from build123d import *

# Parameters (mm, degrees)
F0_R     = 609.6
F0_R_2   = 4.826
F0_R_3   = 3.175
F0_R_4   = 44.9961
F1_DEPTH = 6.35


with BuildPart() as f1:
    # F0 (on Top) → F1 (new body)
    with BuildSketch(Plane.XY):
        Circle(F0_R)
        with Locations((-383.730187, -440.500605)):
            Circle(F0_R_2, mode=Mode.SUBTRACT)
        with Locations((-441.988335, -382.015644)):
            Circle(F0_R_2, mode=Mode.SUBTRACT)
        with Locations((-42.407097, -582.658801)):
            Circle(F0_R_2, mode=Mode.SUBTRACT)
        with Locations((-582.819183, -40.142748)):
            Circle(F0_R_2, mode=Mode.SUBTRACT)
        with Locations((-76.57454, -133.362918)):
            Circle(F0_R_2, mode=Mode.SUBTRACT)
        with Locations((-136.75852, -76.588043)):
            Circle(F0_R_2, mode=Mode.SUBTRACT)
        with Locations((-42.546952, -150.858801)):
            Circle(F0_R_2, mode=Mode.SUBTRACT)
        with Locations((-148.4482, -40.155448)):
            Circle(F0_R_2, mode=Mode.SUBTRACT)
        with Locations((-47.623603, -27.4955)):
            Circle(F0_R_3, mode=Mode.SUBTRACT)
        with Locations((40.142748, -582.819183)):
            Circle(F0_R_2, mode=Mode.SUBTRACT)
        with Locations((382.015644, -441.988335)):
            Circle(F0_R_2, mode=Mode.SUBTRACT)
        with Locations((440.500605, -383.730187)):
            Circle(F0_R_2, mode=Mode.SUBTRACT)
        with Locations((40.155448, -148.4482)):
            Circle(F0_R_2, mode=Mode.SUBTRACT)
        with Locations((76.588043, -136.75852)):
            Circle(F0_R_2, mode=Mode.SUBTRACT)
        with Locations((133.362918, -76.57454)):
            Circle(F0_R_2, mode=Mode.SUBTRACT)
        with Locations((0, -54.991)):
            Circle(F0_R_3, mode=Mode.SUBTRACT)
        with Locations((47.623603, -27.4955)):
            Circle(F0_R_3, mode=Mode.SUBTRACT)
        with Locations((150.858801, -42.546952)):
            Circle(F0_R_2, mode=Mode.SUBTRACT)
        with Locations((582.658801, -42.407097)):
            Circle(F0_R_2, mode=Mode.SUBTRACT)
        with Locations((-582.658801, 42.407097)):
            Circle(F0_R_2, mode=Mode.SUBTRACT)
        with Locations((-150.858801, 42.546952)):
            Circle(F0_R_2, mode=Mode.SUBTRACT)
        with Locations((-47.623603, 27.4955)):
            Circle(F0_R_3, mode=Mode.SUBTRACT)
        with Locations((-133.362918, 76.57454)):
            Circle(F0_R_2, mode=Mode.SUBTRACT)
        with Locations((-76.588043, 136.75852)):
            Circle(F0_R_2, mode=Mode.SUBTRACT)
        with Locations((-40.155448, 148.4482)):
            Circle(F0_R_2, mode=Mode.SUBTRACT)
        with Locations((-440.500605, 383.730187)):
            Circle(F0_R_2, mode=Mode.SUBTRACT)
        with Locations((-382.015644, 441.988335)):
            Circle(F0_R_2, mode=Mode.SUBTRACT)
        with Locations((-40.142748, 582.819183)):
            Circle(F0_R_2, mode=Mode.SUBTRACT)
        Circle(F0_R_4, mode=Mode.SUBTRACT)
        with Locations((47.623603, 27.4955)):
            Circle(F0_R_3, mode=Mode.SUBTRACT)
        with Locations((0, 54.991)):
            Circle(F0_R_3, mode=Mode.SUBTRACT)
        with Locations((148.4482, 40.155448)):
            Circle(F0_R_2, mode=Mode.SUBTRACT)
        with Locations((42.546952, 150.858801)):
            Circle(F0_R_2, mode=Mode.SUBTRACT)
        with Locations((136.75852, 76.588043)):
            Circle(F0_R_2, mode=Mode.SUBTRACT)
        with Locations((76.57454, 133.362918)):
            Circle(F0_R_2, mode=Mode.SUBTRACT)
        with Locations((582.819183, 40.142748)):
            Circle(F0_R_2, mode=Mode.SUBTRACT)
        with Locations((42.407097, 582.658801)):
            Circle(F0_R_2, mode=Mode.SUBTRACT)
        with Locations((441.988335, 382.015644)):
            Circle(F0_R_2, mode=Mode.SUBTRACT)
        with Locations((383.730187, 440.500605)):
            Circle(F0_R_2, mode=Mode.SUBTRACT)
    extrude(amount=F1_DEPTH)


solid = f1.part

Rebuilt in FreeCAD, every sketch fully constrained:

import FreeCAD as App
import Part
import Sketcher
Q = App.Units.Quantity

doc = App.newDocument("Part")
params = doc.addObject("Spreadsheet::Sheet", "Params")
for row, (alias, value) in enumerate([
    ("sketch1_diameter", "48 in"),
    ("sketch1_diameter2", "0.38 in"),
    ("sketch1_diameter3", "0.25 in"),
    ("sketch1_diameter4", "3.543 in"),
    ("pad1_length", "0.25 in"),
], start=1):
    params.set(f"A{row}", alias)
    params.set(f"B{row}", "=" + value)
    params.setAlias(f"B{row}", alias)

body = doc.addObject("PartDesign::Body", "Body")

sketch1 = doc.addObject("Sketcher::SketchObject", "Sketch")
body.addObject(sketch1)
sketch1.AttachmentSupport = (doc.XY_Plane, [""])
sketch1.MapMode = "FlatFace"
sketch1.addGeometry([
    Part.Circle(App.Vector(0, 0, 0), App.Vector(0, 0, 1), 609.6),
    Part.Circle(App.Vector(-441.988335, -382.015644, 0), App.Vector(0, 0, 1), 4.826),
    Part.Circle(App.Vector(-383.730187, -440.500605, 0), App.Vector(0, 0, 1), 4.826),
    Part.Circle(App.Vector(-42.407097, -582.658801, 0), App.Vector(0, 0, 1), 4.826),
    Part.Circle(App.Vector(-582.819183, -40.142748, 0), App.Vector(0, 0, 1), 4.826),
    Part.Circle(App.Vector(-42.546952, -150.858801, 0), App.Vector(0, 0, 1), 4.826),
    Part.Circle(App.Vector(-148.4482, -40.155448, 0), App.Vector(0, 0, 1), 4.826),
    Part.Circle(App.Vector(-76.57454, -133.362918, 0), App.Vector(0, 0, 1), 4.826),
    Part.Circle(App.Vector(-136.75852, -76.588043, 0), App.Vector(0, 0, 1), 4.826),
    Part.Circle(App.Vector(0, -54.991, 0), App.Vector(0, 0, 1), 3.175),
    Part.Circle(App.Vector(-47.623603, -27.4955, 0), App.Vector(0, 0, 1), 3.175),
    Part.Circle(App.Vector(0, 0, 0), App.Vector(0, 0, 1), 44.9961),
    Part.Circle(App.Vector(40.142748, -582.819183, 0), App.Vector(0, 0, 1), 4.826),
    Part.Circle(App.Vector(382.015644, -441.988335, 0), App.Vector(0, 0, 1), 4.826),
    Part.Circle(App.Vector(440.500605, -383.730187, 0), App.Vector(0, 0, 1), 4.826),
    Part.Circle(App.Vector(40.155448, -148.4482, 0), App.Vector(0, 0, 1), 4.826),
    Part.Circle(App.Vector(76.588043, -136.75852, 0), App.Vector(0, 0, 1), 4.826),
    Part.Circle(App.Vector(133.362918, -76.57454, 0), App.Vector(0, 0, 1), 4.826),
    Part.Circle(App.Vector(47.623603, -27.4955, 0), App.Vector(0, 0, 1), 3.175),
    Part.Circle(App.Vector(150.858801, -42.546952, 0), App.Vector(0, 0, 1), 4.826),
    Part.Circle(App.Vector(582.658801, -42.407097, 0), App.Vector(0, 0, 1), 4.826),
    Part.Circle(App.Vector(-582.658801, 42.407097, 0), App.Vector(0, 0, 1), 4.826),
    Part.Circle(App.Vector(-150.858801, 42.546952, 0), App.Vector(0, 0, 1), 4.826),
    Part.Circle(App.Vector(-47.623603, 27.4955, 0), App.Vector(0, 0, 1), 3.175),
    Part.Circle(App.Vector(0, 54.991, 0), App.Vector(0, 0, 1), 3.175),
    Part.Circle(App.Vector(-133.362918, 76.57454, 0), App.Vector(0, 0, 1), 4.826),
    Part.Circle(App.Vector(-76.588043, 136.75852, 0), App.Vector(0, 0, 1), 4.826),
    Part.Circle(App.Vector(-40.155448, 148.4482, 0), App.Vector(0, 0, 1), 4.826),
    Part.Circle(App.Vector(-440.500605, 383.730187, 0), App.Vector(0, 0, 1), 4.826),
    Part.Circle(App.Vector(-382.015644, 441.988335, 0), App.Vector(0, 0, 1), 4.826),
    Part.Circle(App.Vector(-40.142748, 582.819183, 0), App.Vector(0, 0, 1), 4.826),
    Part.Circle(App.Vector(47.623603, 27.4955, 0), App.Vector(0, 0, 1), 3.175),
    Part.Circle(App.Vector(136.75852, 76.588043, 0), App.Vector(0, 0, 1), 4.826),
    Part.Circle(App.Vector(76.57454, 133.362918, 0), App.Vector(0, 0, 1), 4.826),
    Part.Circle(App.Vector(148.4482, 40.155448, 0), App.Vector(0, 0, 1), 4.826),
    Part.Circle(App.Vector(42.546952, 150.858801, 0), App.Vector(0, 0, 1), 4.826),
    Part.Circle(App.Vector(582.819183, 40.142748, 0), App.Vector(0, 0, 1), 4.826),
    Part.Circle(App.Vector(42.407097, 582.658801, 0), App.Vector(0, 0, 1), 4.826),
    Part.Circle(App.Vector(383.730187, 440.500605, 0), App.Vector(0, 0, 1), 4.826),
    Part.Circle(App.Vector(441.988335, 382.015644, 0), App.Vector(0, 0, 1), 4.826),
], False)
sketch1.addConstraint([
    Sketcher.Constraint("Coincident", 0, 3, -1, 1),
    Sketcher.Constraint("Coincident", 11, 3, -1, 1),
    Sketcher.Constraint("Equal", 1, 2),
    Sketcher.Constraint("Equal", 2, 3),
    Sketcher.Constraint("Equal", 3, 4),
    Sketcher.Constraint("Equal", 4, 5),
    Sketcher.Constraint("Equal", 5, 6),
    Sketcher.Constraint("Equal", 6, 7),
    Sketcher.Constraint("Equal", 7, 8),
    Sketcher.Constraint("Equal", 9, 10),
    Sketcher.Constraint("Equal", 8, 12),
    Sketcher.Constraint("Equal", 12, 13),
    Sketcher.Constraint("Equal", 13, 14),
    Sketcher.Constraint("Equal", 14, 15),
    Sketcher.Constraint("Equal", 15, 16),
    Sketcher.Constraint("Equal", 16, 17),
    Sketcher.Constraint("Equal", 10, 18),
    Sketcher.Constraint("Equal", 17, 19),
    Sketcher.Constraint("Equal", 19, 20),
    Sketcher.Constraint("Equal", 20, 21),
    Sketcher.Constraint("Equal", 21, 22),
    Sketcher.Constraint("Equal", 18, 23),
    Sketcher.Constraint("Equal", 23, 24),
    Sketcher.Constraint("Equal", 22, 25),
    Sketcher.Constraint("Equal", 25, 26),
    Sketcher.Constraint("Equal", 26, 27),
    Sketcher.Constraint("Equal", 27, 28),
    Sketcher.Constraint("Equal", 28, 29),
    Sketcher.Constraint("Equal", 29, 30),
    Sketcher.Constraint("Equal", 24, 31),
    Sketcher.Constraint("Equal", 30, 32),
    Sketcher.Constraint("Equal", 32, 33),
    Sketcher.Constraint("Equal", 33, 34),
    Sketcher.Constraint("Equal", 34, 35),
    Sketcher.Constraint("Equal", 35, 36),
    Sketcher.Constraint("Equal", 36, 37),
    Sketcher.Constraint("Equal", 37, 38),
    Sketcher.Constraint("Equal", 38, 39),
    Sketcher.Constraint("Symmetric", 20, 3, 21, 3, -1, 1),
    Sketcher.Constraint("Symmetric", 19, 3, 22, 3, -1, 1),
    Sketcher.Constraint("Symmetric", 18, 3, 23, 3, -1, 1),
    Sketcher.Constraint("Symmetric", 9, 3, 24, 3, -1, 1),
    Sketcher.Constraint("Symmetric", 17, 3, 25, 3, -1, 1),
    Sketcher.Constraint("Symmetric", 16, 3, 26, 3, -1, 1),
    Sketcher.Constraint("Symmetric", 15, 3, 27, 3, -1, 1),
    Sketcher.Constraint("Symmetric", 14, 3, 28, 3, -1, 1),
    Sketcher.Constraint("Symmetric", 13, 3, 29, 3, -1, 1),
    Sketcher.Constraint("Symmetric", 12, 3, 30, 3, -1, 1),
    Sketcher.Constraint("Symmetric", 10, 3, 31, 3, -1, 1),
    Sketcher.Constraint("Symmetric", 8, 3, 32, 3, -1, 1),
    Sketcher.Constraint("Symmetric", 7, 3, 33, 3, -1, 1),
    Sketcher.Constraint("Symmetric", 6, 3, 34, 3, -1, 1),
    Sketcher.Constraint("Symmetric", 5, 3, 35, 3, -1, 1),
    Sketcher.Constraint("Symmetric", 4, 3, 36, 3, -1, 1),
    Sketcher.Constraint("Symmetric", 3, 3, 37, 3, -1, 1),
    Sketcher.Constraint("Symmetric", 2, 3, 38, 3, -1, 1),
    Sketcher.Constraint("Symmetric", 1, 3, 39, 3, -1, 1),
    Sketcher.Constraint("Symmetric", 10, 3, 18, 3, -2),
    Sketcher.Constraint("PointOnObject", 9, 3, -2),
    Sketcher.Constraint("Diameter", 0, Q("48 in")),
    Sketcher.Constraint("Diameter", 1, Q("0.38 in")),
    Sketcher.Constraint("Diameter", 9, Q("0.25 in")),
    Sketcher.Constraint("Diameter", 11, Q("3.543 in")),
    Sketcher.Constraint("DistanceY", 3, 3, 5, 3, Q("17 in")),
    Sketcher.Constraint("DistanceX", 19, 3, 20, 3, Q("17 in")),
    Sketcher.Constraint("DistanceY", 9, 3, -1, 1, Q("2.165 in")),
    Sketcher.Constraint("DistanceX", 5, 3, 15, 3, Q("3.256 in")),
    Sketcher.Constraint("DistanceY", 6, 3, 22, 3, Q("3.256 in")),
    Sketcher.Constraint("DistanceY", 10, 3, 23, 3, Q("2.165 in")),
    Sketcher.Constraint("DistanceY", 6, 3, 4, 3, Q("0.0005 in")),
    Sketcher.Constraint("DistanceX", 5, 3, 12, 3, Q("3.2555 in")),
    Sketcher.Constraint("DistanceY", 3, 3, -1, 1, 582.658801),
    Sketcher.Constraint("DistanceX", 6, 3, -1, 1, 148.4482),
    Sketcher.Constraint("DistanceY", 15, 3, -1, 1, 148.4482),
    Sketcher.Constraint("DistanceX", -1, 1, 19, 3, 150.858801),
    Sketcher.Constraint("DistanceY", 1, 3, 8, 3, 305.427601),
    Sketcher.Constraint("DistanceY", 16, 3, 7, 3, 3.395602),
    Sketcher.Constraint("DistanceX", 29, 3, 26, 3, 305.427601),
    Sketcher.Constraint("DistanceX", 17, 3, 32, 3, 3.395602),
    Sketcher.Constraint("DistanceX", 5, 3, -1, 1, 42.546952),
    Sketcher.Constraint("DistanceX", 7, 3, -1, 1, 76.57454),
    Sketcher.Constraint("DistanceY", 7, 3, -1, 1, 133.362918),
    Sketcher.Constraint("DistanceX", 8, 3, -1, 1, 136.75852),
    Sketcher.Constraint("DistanceY", 17, 3, -1, 1, 76.57454),
    Sketcher.Constraint("DistanceY", 19, 3, -1, 1, 42.546952),
    Sketcher.Constraint("DistanceX", 1, 3, 2, 3, 58.258148),
    Sketcher.Constraint("DistanceY", 2, 3, 1, 3, 58.484961),
    Sketcher.Constraint("DistanceX", 2, 3, 3, 3, 341.32309),
    Sketcher.Constraint("DistanceX", 4, 3, 5, 3, 540.272231),
    Sketcher.Constraint("DistanceY", 5, 3, 8, 3, 74.270758),
    Sketcher.Constraint("DistanceY", 12, 3, 3, 3, 0.160382),
    Sketcher.Constraint("DistanceX", 3, 3, 13, 3, 424.422741),
    Sketcher.Constraint("DistanceX", 13, 3, 14, 3, 58.484961),
    Sketcher.Constraint("DistanceY", 13, 3, 14, 3, 58.258148),
    Sketcher.Constraint("DistanceX", 10, 3, 15, 3, 87.779051),
    Sketcher.Constraint("DistanceX", 16, 3, 19, 3, 74.270758),
    Sketcher.Constraint("DistanceY", 14, 3, 20, 3, 341.32309),
    Sketcher.Constraint("DistanceY", 1, 3, 21, 3, 424.422741),
])
sketch1.setExpression("Constraints[59]", "Params.sketch1_diameter")
sketch1.setExpression("Constraints[60]", "Params.sketch1_diameter2")
sketch1.setExpression("Constraints[61]", "Params.sketch1_diameter3")
sketch1.setExpression("Constraints[62]", "Params.sketch1_diameter4")
pad1 = doc.addObject("PartDesign::Pad", "Pad")
body.addObject(pad1)
pad1.Profile = sketch1
pad1.setExpression("Length", "Params.pad1_length")

doc.recompute()
